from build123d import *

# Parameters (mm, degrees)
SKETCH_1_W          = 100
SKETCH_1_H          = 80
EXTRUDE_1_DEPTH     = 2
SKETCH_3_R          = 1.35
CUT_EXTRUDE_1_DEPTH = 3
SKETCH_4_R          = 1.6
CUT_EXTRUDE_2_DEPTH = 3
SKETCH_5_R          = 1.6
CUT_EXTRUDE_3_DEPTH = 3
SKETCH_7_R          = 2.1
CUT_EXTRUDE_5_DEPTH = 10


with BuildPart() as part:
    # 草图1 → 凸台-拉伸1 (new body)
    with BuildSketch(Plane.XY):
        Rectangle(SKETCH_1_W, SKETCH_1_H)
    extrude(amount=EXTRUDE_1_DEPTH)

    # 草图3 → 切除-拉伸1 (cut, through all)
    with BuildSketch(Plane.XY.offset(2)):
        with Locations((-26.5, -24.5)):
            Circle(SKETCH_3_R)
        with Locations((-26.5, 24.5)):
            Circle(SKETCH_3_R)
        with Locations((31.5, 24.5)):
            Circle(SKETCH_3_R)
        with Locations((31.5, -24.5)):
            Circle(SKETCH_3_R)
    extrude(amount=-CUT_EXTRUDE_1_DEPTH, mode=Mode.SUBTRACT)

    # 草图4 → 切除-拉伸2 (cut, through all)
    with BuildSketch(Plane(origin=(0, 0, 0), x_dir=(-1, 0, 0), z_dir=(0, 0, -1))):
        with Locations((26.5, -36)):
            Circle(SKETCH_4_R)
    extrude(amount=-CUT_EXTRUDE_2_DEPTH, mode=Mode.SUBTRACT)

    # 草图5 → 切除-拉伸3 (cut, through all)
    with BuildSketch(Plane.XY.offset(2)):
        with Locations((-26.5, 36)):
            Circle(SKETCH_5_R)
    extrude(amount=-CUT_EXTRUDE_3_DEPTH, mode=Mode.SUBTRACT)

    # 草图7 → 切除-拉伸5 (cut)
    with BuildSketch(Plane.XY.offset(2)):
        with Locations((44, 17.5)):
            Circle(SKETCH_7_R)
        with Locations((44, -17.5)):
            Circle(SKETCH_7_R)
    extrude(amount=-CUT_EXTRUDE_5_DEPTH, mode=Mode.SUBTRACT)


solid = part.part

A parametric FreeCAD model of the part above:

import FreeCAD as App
import Part
import Sketcher


def add_polygon(sketch, points):
    """Adds a closed chain of lines whose ends are joined by coincident constraints."""
    first, n = sketch.GeometryCount, len(points)
    for a, b in zip(points, points[1:] + points[:1]):
        sketch.addGeometry(Part.LineSegment(App.Vector(*a, 0), App.Vector(*b, 0)), False)
    for i in range(n):
        sketch.addConstraint(Sketcher.Constraint("Coincident", first + i, 2, first + (i + 1) % n, 1))

doc = App.newDocument("Part")
body = doc.addObject("PartDesign::Body", "Body")

# Sketch on XY plane
sketch1 = doc.addObject("Sketcher::SketchObject", "Sketch")
body.addObject(sketch1)
sketch1.AttachmentSupport = (doc.XY_Plane, [""])
sketch1.MapMode = "FlatFace"
add_polygon(sketch1, [(-50, 40), (-50, -40), (50, -40), (50, 40)])  # lines 0-3
sketch1.addConstraint([
    Sketcher.Constraint("Vertical", 0),
    Sketcher.Constraint("Horizontal", 1),
    Sketcher.Constraint("Vertical", 2),
    Sketcher.Constraint("Horizontal", 3),
    Sketcher.Constraint("Symmetric", 0, 2, 2, 2, -1, 1),
    Sketcher.Constraint("DistanceX", 1, 1, 1, 2, 100.0),
    Sketcher.Constraint("DistanceY", 0, 2, 0, 1, 80.0),
])
pad1 = doc.addObject("PartDesign::Pad", "Pad")
body.addObject(pad1)
pad1.Profile = sketch1
pad1.Length = 2

# Sketch on XY plane
sketch2 = doc.addObject("Sketcher::SketchObject", "Sketch001")
body.addObject(sketch2)
sketch2.AttachmentSupport = (doc.XY_Plane, [""])
sketch2.MapMode = "FlatFace"
sketch2.AttachmentOffset = App.Placement(App.Vector(0, 0, 2), App.Rotation())
sketch2.addGeometry([
    Part.Circle(App.Vector(-26.5, -24.5, 0), App.Vector(0, 0, 1), 1.35),
    Part.Circle(App.Vector(-26.5, 24.5, 0), App.Vector(0, 0, 1), 1.35),
    Part.Circle(App.Vector(31.5, 24.5, 0), App.Vector(0, 0, 1), 1.35),
    Part.Circle(App.Vector(31.5, -24.5, 0), App.Vector(0, 0, 1), 1.35),
], False)
sketch2.addConstraint([
    Sketcher.Constraint("Equal", 0, 1),
    Sketcher.Constraint("Equal", 1, 2),
    Sketcher.Constraint("Equal", 2, 3),
    Sketcher.Constraint("Symmetric", 0, 3, 1, 3, -1),
    Sketcher.Constraint("Symmetric", 2, 3, 3, 3, -1),
    Sketcher.Constraint("Horizontal", 1, 3, 2, 3),
    Sketcher.Constraint("Diameter", 0, 2.7),
    Sketcher.Constraint("DistanceY", 0, 3, 1, 3, 49.0),
    Sketcher.Constraint("DistanceX", 1, 3, 2, 3, 58.0),
    Sketcher.Constraint("DistanceX", 0, 3, -1, 1, 26.5),
])
pocket1 = doc.addObject("PartDesign::Pocket", "Pocket")
body.addObject(pocket1)
pocket1.Profile = sketch2
pocket1.Type = "ThroughAll"

# Sketch on XY plane
sketch3 = doc.addObject("Sketcher::SketchObject", "Sketch002")
body.addObject(sketch3)
sketch3.AttachmentSupport = (doc.XY_Plane, [""])
sketch3.MapMode = "FlatFace"
sketch3.addGeometry(Part.Circle(App.Vector(-26.5, -36, 0), App.Vector(0, 0, 1), 1.6), False)
sketch3.addConstraint([
    Sketcher.Constraint("Diameter", 0, 3.2),
    Sketcher.Constraint("DistanceY", 0, 3, -1, 1, 36.0),
    Sketcher.Constraint("DistanceX", 0, 3, -1, 1, 26.5),
])
pocket2 = doc.addObject("PartDesign::Pocket", "Pocket001")
body.addObject(pocket2)
pocket2.Profile = sketch3
pocket2.Type = "ThroughAll"
pocket2.Reversed = True

# Sketch on XY plane
sketch4 = doc.addObject("Sketcher::SketchObject", "Sketch003")
body.addObject(sketch4)
sketch4.AttachmentSupport = (doc.XY_Plane, [""])
sketch4.MapMode = "FlatFace"
sketch4.AttachmentOffset = App.Placement(App.Vector(0, 0, 2), App.Rotation())
sketch4.addGeometry(Part.Circle(App.Vector(-26.5, 36, 0), App.Vector(0, 0, 1), 1.6), False)
sketch4.addConstraint([
    Sketcher.Constraint("Diameter", 0, 3.2),
    Sketcher.Constraint("DistanceY", -1, 1, 0, 3, 36.0),
    Sketcher.Constraint("DistanceX", 0, 3, -1, 1, 26.5),
])
pocket3 = doc.addObject("PartDesign::Pocket", "Pocket002")
body.addObject(pocket3)
pocket3.Profile = sketch4
pocket3.Type = "ThroughAll"

# Sketch on XY plane
sketch5 = doc.addObject("Sketcher::SketchObject", "Sketch004")
body.addObject(sketch5)
sketch5.AttachmentSupport = (doc.XY_Plane, [""])
sketch5.MapMode = "FlatFace"
sketch5.AttachmentOffset = App.Placement(App.Vector(0, 0, 2), App.Rotation())
sketch5.addGeometry([
    Part.Circle(App.Vector(44, 17.5, 0), App.Vector(0, 0, 1), 2.1),
    Part.Circle(App.Vector(44, -17.5, 0), App.Vector(0, 0, 1), 2.1),
], False)
sketch5.addConstraint([
    Sketcher.Constraint("Equal", 0, 1),
    Sketcher.Constraint("Symmetric", 0, 3, 1, 3, -1),
    Sketcher.Constraint("Diameter", 0, 4.2),
    Sketcher.Constraint("DistanceX", -1, 1, 0, 3, 44.0),
    Sketcher.Constraint("DistanceY", 1, 3, 0, 3, 35.0),
])
pocket4 = doc.addObject("PartDesign::Pocket", "Pocket003")
body.addObject(pocket4)
pocket4.Profile = sketch5
pocket4.Length = 10

doc.recompute()
